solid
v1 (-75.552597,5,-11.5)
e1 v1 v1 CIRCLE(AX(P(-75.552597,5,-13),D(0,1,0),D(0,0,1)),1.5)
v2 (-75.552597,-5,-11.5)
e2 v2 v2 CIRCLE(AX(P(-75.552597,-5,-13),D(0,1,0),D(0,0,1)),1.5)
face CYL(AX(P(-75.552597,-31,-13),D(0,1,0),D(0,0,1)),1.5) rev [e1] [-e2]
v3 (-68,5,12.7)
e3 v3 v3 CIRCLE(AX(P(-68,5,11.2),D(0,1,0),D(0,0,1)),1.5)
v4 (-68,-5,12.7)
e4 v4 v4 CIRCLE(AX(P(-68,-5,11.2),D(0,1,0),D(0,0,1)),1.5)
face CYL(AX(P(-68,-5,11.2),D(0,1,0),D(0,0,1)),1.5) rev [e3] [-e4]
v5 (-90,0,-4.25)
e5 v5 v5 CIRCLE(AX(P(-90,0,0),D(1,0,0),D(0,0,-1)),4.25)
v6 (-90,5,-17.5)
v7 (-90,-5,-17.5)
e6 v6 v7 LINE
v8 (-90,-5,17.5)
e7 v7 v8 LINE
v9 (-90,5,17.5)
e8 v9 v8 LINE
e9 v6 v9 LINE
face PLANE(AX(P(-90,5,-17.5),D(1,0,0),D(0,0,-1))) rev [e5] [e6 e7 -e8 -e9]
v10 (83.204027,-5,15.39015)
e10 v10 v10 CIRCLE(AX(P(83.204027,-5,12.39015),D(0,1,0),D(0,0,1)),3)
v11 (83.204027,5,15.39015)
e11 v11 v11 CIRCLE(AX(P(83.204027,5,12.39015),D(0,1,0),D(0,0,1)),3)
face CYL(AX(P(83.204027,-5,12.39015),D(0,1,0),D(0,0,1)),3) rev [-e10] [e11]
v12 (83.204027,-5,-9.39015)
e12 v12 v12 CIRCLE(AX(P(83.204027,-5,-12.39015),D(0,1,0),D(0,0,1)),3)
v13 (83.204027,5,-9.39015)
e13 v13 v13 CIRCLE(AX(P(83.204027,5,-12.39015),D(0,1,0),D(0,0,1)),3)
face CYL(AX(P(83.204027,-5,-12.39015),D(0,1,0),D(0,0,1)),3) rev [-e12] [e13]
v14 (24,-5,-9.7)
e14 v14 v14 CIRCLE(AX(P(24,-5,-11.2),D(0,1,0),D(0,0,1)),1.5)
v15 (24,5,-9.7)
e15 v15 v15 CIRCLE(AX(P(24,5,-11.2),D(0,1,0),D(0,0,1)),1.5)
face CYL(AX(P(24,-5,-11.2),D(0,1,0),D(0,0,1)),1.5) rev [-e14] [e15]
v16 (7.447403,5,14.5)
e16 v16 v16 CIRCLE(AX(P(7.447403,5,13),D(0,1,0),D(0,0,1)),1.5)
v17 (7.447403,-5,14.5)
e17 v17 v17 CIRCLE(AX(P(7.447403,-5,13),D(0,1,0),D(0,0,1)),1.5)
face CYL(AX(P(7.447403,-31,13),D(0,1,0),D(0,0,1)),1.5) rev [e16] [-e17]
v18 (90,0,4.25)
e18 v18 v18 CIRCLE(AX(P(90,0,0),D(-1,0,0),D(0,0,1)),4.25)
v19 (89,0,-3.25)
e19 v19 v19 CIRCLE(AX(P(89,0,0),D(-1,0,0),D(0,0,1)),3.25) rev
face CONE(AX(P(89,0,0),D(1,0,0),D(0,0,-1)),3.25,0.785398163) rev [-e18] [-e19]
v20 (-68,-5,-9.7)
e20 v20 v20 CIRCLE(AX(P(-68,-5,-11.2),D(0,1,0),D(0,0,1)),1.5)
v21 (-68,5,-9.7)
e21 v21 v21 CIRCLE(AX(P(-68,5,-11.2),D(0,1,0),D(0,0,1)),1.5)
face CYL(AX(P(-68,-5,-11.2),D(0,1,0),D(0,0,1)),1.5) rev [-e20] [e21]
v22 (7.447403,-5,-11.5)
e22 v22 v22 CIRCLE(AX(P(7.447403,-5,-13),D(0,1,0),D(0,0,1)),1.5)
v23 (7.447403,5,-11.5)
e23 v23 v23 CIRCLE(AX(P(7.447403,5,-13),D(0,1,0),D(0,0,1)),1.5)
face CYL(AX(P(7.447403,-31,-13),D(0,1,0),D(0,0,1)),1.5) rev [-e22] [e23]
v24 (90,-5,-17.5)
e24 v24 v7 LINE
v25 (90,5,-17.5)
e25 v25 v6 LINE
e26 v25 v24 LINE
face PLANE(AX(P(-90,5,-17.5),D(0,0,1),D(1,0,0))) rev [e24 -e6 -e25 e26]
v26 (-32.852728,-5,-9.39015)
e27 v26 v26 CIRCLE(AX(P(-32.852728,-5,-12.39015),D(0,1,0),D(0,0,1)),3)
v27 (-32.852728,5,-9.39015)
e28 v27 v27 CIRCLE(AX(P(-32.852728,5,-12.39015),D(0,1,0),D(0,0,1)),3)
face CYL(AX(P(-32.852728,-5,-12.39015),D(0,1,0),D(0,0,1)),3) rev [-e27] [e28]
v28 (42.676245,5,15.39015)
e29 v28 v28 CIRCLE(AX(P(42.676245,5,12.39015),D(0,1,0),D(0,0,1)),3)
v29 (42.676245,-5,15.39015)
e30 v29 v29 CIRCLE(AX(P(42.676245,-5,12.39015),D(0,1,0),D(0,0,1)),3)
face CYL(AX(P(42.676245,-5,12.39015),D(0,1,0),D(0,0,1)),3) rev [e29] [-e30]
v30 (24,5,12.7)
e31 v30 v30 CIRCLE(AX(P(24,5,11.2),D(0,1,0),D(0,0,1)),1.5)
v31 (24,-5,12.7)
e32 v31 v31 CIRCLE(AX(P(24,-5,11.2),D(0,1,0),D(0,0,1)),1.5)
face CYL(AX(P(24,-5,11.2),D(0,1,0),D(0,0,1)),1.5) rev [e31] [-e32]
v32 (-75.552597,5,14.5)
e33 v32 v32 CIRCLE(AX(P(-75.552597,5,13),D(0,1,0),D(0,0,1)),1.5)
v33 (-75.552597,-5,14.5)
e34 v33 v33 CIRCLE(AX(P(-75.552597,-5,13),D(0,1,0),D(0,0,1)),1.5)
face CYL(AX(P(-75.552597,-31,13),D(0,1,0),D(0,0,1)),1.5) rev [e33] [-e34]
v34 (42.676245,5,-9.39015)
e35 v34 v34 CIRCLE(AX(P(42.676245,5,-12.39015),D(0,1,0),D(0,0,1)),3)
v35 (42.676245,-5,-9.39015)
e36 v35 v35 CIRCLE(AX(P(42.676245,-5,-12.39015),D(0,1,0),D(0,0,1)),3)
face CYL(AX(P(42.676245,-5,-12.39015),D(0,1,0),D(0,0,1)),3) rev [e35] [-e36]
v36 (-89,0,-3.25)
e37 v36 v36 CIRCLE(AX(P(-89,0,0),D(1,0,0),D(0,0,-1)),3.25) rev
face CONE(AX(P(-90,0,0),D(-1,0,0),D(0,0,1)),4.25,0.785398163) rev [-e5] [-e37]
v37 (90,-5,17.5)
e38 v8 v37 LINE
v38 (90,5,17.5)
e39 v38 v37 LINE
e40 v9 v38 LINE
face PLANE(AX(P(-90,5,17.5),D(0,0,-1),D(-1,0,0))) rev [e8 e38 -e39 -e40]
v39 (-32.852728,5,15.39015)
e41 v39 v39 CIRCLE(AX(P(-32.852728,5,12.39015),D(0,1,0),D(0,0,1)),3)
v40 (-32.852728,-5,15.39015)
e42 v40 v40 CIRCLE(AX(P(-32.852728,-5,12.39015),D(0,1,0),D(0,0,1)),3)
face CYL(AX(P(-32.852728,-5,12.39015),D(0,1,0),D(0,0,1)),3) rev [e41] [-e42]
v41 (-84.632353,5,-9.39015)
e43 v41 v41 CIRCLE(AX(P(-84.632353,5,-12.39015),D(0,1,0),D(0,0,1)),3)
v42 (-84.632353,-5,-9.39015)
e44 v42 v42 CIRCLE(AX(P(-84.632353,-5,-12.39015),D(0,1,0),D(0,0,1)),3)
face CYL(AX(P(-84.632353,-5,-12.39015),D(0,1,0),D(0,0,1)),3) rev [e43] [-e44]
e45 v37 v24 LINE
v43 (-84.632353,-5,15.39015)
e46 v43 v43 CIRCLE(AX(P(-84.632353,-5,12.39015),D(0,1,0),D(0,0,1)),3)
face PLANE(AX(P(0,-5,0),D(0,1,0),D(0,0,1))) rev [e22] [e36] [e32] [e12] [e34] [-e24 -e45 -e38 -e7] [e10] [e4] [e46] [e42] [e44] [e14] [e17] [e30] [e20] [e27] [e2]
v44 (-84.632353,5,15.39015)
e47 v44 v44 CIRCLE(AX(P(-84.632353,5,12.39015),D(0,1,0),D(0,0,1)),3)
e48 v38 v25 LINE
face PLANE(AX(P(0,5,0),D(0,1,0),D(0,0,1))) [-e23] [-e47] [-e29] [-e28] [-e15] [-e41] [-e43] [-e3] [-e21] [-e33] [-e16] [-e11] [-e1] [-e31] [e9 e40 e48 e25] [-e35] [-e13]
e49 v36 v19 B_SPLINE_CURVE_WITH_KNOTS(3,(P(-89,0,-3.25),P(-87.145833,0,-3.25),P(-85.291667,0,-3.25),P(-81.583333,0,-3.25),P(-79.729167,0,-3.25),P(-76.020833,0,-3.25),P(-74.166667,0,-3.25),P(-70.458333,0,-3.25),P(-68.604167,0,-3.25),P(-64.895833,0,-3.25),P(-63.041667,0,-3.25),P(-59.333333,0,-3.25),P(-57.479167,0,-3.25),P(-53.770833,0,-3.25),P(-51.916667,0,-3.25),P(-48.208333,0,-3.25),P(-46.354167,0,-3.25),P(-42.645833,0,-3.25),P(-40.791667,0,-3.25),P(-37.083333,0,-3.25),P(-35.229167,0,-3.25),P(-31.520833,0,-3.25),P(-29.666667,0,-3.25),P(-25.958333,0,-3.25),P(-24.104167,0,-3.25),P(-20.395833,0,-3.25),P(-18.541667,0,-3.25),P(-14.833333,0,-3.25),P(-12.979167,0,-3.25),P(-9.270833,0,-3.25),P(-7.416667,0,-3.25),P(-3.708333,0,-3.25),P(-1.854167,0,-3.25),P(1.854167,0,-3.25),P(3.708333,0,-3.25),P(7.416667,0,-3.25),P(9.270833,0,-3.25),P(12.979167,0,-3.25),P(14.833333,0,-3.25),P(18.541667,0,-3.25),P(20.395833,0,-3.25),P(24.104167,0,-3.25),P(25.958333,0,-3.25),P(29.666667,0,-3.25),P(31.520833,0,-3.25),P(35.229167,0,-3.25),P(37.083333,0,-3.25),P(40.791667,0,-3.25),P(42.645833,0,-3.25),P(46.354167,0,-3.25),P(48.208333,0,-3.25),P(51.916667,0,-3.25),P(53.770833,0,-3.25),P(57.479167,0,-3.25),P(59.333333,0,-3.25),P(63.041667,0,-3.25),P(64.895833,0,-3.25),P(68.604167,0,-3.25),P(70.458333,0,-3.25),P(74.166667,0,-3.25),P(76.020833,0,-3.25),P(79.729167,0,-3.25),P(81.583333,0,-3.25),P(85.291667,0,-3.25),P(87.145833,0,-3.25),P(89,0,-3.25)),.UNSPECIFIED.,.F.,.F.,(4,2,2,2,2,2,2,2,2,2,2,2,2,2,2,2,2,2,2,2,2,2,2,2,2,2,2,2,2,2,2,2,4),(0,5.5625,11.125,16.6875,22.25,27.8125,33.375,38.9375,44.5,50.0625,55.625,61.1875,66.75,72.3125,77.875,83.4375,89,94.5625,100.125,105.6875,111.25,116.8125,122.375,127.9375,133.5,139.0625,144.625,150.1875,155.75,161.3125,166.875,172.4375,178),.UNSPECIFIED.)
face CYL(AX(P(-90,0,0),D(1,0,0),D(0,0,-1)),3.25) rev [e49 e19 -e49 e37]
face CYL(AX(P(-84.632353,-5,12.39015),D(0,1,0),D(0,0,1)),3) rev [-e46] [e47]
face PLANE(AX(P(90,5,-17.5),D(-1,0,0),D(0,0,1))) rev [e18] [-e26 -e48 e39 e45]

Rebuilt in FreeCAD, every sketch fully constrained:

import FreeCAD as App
import Part
import Sketcher

V = App.Vector
Q = App.Units.Quantity


def edges_at(feature, points):
    """Names of the edges that pass closest to the given points."""
    edges = feature.Shape.Edges
    near = lambda p: min(range(len(edges)), key=lambda i: edges[i].distToShape(Part.Vertex(*p))[0])
    return sorted({f"Edge{near(p) + 1}" for p in points})

doc = App.newDocument("Part")
body = doc.addObject("PartDesign::Body", "Body")

sketch1 = body.newObject("Sketcher::SketchObject", "Sketch")
sketch1.AttachmentSupport = (doc.getObject("XZ_Plane"), [""])
sketch1.MapMode = "FlatFace"
sketch1.addGeometry(Part.LineSegment(V(-90, -17.5, 0), V(-90, 17.5, 0)), False)
sketch1.addGeometry(Part.LineSegment(V(-90, 17.5, 0), V(90, 17.5, 0)), False)
sketch1.addGeometry(Part.LineSegment(V(90, 17.5, 0), V(90, -17.5, 0)), False)
sketch1.addGeometry(Part.LineSegment(V(90, -17.5, 0), V(-90, -17.5, 0)), False)
sketch1.addConstraint(Sketcher.Constraint("Coincident", 0, 2, 1, 1))
sketch1.addConstraint(Sketcher.Constraint("Coincident", 1, 2, 2, 1))
sketch1.addConstraint(Sketcher.Constraint("Coincident", 2, 2, 3, 1))
sketch1.addConstraint(Sketcher.Constraint("Coincident", 3, 2, 0, 1))
sketch1.addConstraint(Sketcher.Constraint("Vertical", 0))
sketch1.addConstraint(Sketcher.Constraint("Horizontal", 1))
sketch1.addConstraint(Sketcher.Constraint("Vertical", 2))
sketch1.addConstraint(Sketcher.Constraint("Horizontal", 3))
sketch1.addConstraint(Sketcher.Constraint("Symmetric", 0, 2, 2, 2, -1, 1))
sketch1.addConstraint(Sketcher.Constraint("DistanceX", 1, 1, 1, 2, Q("180 mm")))
sketch1.addConstraint(Sketcher.Constraint("DistanceY", 0, 1, 0, 2, Q("35 mm")))
pad1 = body.newObject("PartDesign::Pad", "Pad")
pad1.Profile = sketch1
pad1.Length = 10
pad1.Midplane = True

sketch2 = body.newObject("Sketcher::SketchObject", "Sketch001")
sketch2.AttachmentSupport = (doc.getObject("YZ_Plane"), [""])
sketch2.MapMode = "FlatFace"
sketch2.AttachmentOffset = App.Placement(V(0, 0, 90), App.Rotation())
sketch2.addGeometry(Part.Circle(V(0, 0, 0), V(0, 0, 1), 3.25), False)
sketch2.addConstraint(Sketcher.Constraint("Coincident", 0, 3, -1, 1))
sketch2.addConstraint(Sketcher.Constraint("Diameter", 0, Q("6.5 mm")))
pocket1 = body.newObject("PartDesign::Pocket", "Pocket")
pocket1.Profile = sketch2
pocket1.Type = "ThroughAll"
doc.recompute()

chamfer = body.newObject("PartDesign::Chamfer", "Chamfer")
chamfer.Base = (pocket1, edges_at(pocket1, [(90, 0, 3.25)]))
chamfer.Size = 1
doc.recompute()

chamfer2 = body.newObject("PartDesign::Chamfer", "Chamfer001")
chamfer2.Base = (chamfer, edges_at(chamfer, [(-90, 0, 3.25)]))
chamfer2.Size = 1

sketch3 = body.newObject("Sketcher::SketchObject", "Sketch002")
sketch3.AttachmentSupport = (doc.getObject("XZ_Plane"), [""])
sketch3.MapMode = "FlatFace"
sketch3.AttachmentOffset = App.Placement(V(0, 0, -5), App.Rotation())
sketch3.addGeometry(Part.Circle(V(-68, 11.2, 0), V(0, 0, 1), 1.5), False)
sketch3.addGeometry(Part.Circle(V(-68, -11.2, 0), V(0, 0, 1), 1.5), False)
sketch3.addGeometry(Part.Circle(V(24, -11.2, 0), V(0, 0, 1), 1.5), False)
sketch3.addGeometry(Part.Circle(V(24, 11.2, 0), V(0, 0, 1), 1.5), False)
sketch3.addConstraint(Sketcher.Constraint("Equal", 0, 1))
sketch3.addConstraint(Sketcher.Constraint("Equal", 1, 2))
sketch3.addConstraint(Sketcher.Constraint("Equal", 2, 3))
sketch3.addConstraint(Sketcher.Constraint("Symmetric", 0, 3, 1, 3, -1))
sketch3.addConstraint(Sketcher.Constraint("Symmetric", 2, 3, 3, 3, -1))
sketch3.addConstraint(Sketcher.Constraint("Horizontal", 1, 3, 2, 3))
sketch3.addConstraint(Sketcher.Constraint("Diameter", 0, Q("3 mm")))
sketch3.addConstraint(Sketcher.Constraint("DistanceX", 0, 3, -1, 1, Q("68 mm")))
sketch3.addConstraint(Sketcher.Constraint("DistanceX", -1, 1, 2, 3, Q("24 mm")))
sketch3.addConstraint(Sketcher.Constraint("DistanceY", -1, 1, 0, 3, Q("11.2 mm")))
pocket2 = body.newObject("PartDesign::Pocket", "Pocket001")
pocket2.Profile = sketch3
pocket2.Length = 10
pocket2.Reversed = True

sketch4 = body.newObject("Sketcher::SketchObject", "Sketch003")
sketch4.AttachmentSupport = (doc.getObject("XZ_Plane"), [""])
sketch4.MapMode = "FlatFace"
sketch4.AttachmentOffset = App.Placement(V(0, 0, -5), App.Rotation())
sketch4.addGeometry(Part.Circle(V(-75.552597, -13, 0), V(0, 0, 1), 1.5), False)
sketch4.addGeometry(Part.Circle(V(-75.552597, 13, 0), V(0, 0, 1), 1.5), False)
sketch4.addGeometry(Part.Circle(V(7.447403, 13, 0), V(0, 0, 1), 1.5), False)
sketch4.addGeometry(Part.Circle(V(7.447403, -13, 0), V(0, 0, 1), 1.5), False)
sketch4.addConstraint(Sketcher.Constraint("Equal", 0, 1))
sketch4.addConstraint(Sketcher.Constraint("Equal", 1, 2))
sketch4.addConstraint(Sketcher.Constraint("Equal", 2, 3))
sketch4.addConstraint(Sketcher.Constraint("Symmetric", 0, 3, 1, 3, -1))
sketch4.addConstraint(Sketcher.Constraint("Symmetric", 2, 3, 3, 3, -1))
sketch4.addConstraint(Sketcher.Constraint("Horizontal", 1, 3, 2, 3))
sketch4.addConstraint(Sketcher.Constraint("Diameter", 0, Q("3 mm")))
sketch4.addConstraint(Sketcher.Constraint("DistanceY", 0, 3, -1, 1, Q("13 mm")))
sketch4.addConstraint(Sketcher.Constraint("DistanceX", 1, 3, 2, 3, Q("83 mm")))
sketch4.addConstraint(Sketcher.Constraint("DistanceX", 0, 3, -1, 1, Q("75.552597 mm")))
pocket3 = body.newObject("PartDesign::Pocket", "Pocket002")
pocket3.Profile = sketch4
pocket3.Length = 36
pocket3.Reversed = True

sketch5 = body.newObject("Sketcher::SketchObject", "Sketch004")
sketch5.AttachmentSupport = (doc.getObject("XZ_Plane"), [""])
sketch5.MapMode = "FlatFace"
sketch5.AttachmentOffset = App.Placement(V(0, 0, -5), App.Rotation())
sketch5.addGeometry(Part.Circle(V(-84.632353, -12.39015, 0), V(0, 0, 1), 3), False)
sketch5.addGeometry(Part.Circle(V(-84.632353, 12.39015, 0), V(0, 0, 1), 3), False)
sketch5.addGeometry(Part.Circle(V(83.204027, -12.39015, 0), V(0, 0, 1), 3), False)
sketch5.addGeometry(Part.Circle(V(83.204027, 12.39015, 0), V(0, 0, 1), 3), False)
sketch5.addGeometry(Part.Circle(V(42.676245, 12.39015, 0), V(0, 0, 1), 3), False)
sketch5.addGeometry(Part.Circle(V(42.676245, -12.39015, 0), V(0, 0, 1), 3), False)
sketch5.addGeometry(Part.Circle(V(-32.852728, 12.39015, 0), V(0, 0, 1), 3), False)
sketch5.addGeometry(Part.Circle(V(-32.852728, -12.39015, 0), V(0, 0, 1), 3), False)
sketch5.addConstraint(Sketcher.Constraint("Equal", 0, 1))
sketch5.addConstraint(Sketcher.Constraint("Equal", 1, 2))
sketch5.addConstraint(Sketcher.Constraint("Equal", 2, 3))
sketch5.addConstraint(Sketcher.Constraint("Equal", 3, 4))
sketch5.addConstraint(Sketcher.Constraint("Equal", 4, 5))
sketch5.addConstraint(Sketcher.Constraint("Equal", 5, 6))
sketch5.addConstraint(Sketcher.Constraint("Equal", 6, 7))
sketch5.addConstraint(Sketcher.Constraint("Symmetric", 0, 3, 1, 3, -1))
sketch5.addConstraint(Sketcher.Constraint("Symmetric", 2, 3, 3, 3, -1))
sketch5.addConstraint(Sketcher.Constraint("Symmetric", 4, 3, 5, 3, -1))
sketch5.addConstraint(Sketcher.Constraint("Symmetric", 6, 3, 7, 3, -1))
sketch5.addConstraint(Sketcher.Constraint("Horizontal", 0, 3, 2, 3))
sketch5.addConstraint(Sketcher.Constraint("Horizontal", 3, 3, 4, 3))
sketch5.addConstraint(Sketcher.Constraint("Horizontal", 4, 3, 6, 3))
sketch5.addConstraint(Sketcher.Constraint("Diameter", 0, Q("6 mm")))
sketch5.addConstraint(Sketcher.Constraint("DistanceY", 0, 3, 1, 3, Q("24.780301 mm")))
sketch5.addConstraint(Sketcher.Constraint("DistanceX", 0, 3, 2, 3, Q("167.83638 mm")))
sketch5.addConstraint(Sketcher.Constraint("DistanceX", 0, 3, -1, 1, Q("84.632353 mm")))
sketch5.addConstraint(Sketcher.Constraint("DistanceX", -1, 1, 4, 3, Q("42.676245 mm")))
sketch5.addConstraint(Sketcher.Constraint("DistanceX", 6, 3, -1, 1, Q("32.852728 mm")))
pocket4 = body.newObject("PartDesign::Pocket", "Pocket003")
pocket4.Profile = sketch5
pocket4.Length = 10
pocket4.Reversed = True

doc.recompute()
